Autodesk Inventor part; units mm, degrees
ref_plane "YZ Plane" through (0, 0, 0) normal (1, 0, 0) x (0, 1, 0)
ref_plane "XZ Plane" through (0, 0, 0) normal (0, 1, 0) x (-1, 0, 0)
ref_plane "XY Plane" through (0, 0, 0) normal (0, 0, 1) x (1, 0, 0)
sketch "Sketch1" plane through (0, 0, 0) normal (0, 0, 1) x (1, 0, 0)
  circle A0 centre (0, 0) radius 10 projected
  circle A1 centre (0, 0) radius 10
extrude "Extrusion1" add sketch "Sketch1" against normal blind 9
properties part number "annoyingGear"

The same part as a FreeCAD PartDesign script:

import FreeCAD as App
import Part
import Sketcher

V = App.Vector

doc = App.newDocument("Part")
body = doc.addObject("PartDesign::Body", "Body")

# Sketch on XY plane
sketch1 = doc.addObject("Sketcher::SketchObject", "Sketch")
body.addObject(sketch1)
sketch1.AttachmentSupport = (doc.XY_Plane, [""])
sketch1.MapMode = "FlatFace"
sketch1.addGeometry(Part.Circle(V(0, 0, 0), V(0, 0, 1), 10), False)
sketch1.addConstraint(Sketcher.Constraint("Coincident", 0, 3, -1, 1))
sketch1.addConstraint(Sketcher.Constraint("Diameter", 0, 20.0))
pad1 = doc.addObject("PartDesign::Pad", "Pad")
body.addObject(pad1)
pad1.Profile = sketch1
pad1.Length = 9
pad1.Reversed = True

doc.recompute()
